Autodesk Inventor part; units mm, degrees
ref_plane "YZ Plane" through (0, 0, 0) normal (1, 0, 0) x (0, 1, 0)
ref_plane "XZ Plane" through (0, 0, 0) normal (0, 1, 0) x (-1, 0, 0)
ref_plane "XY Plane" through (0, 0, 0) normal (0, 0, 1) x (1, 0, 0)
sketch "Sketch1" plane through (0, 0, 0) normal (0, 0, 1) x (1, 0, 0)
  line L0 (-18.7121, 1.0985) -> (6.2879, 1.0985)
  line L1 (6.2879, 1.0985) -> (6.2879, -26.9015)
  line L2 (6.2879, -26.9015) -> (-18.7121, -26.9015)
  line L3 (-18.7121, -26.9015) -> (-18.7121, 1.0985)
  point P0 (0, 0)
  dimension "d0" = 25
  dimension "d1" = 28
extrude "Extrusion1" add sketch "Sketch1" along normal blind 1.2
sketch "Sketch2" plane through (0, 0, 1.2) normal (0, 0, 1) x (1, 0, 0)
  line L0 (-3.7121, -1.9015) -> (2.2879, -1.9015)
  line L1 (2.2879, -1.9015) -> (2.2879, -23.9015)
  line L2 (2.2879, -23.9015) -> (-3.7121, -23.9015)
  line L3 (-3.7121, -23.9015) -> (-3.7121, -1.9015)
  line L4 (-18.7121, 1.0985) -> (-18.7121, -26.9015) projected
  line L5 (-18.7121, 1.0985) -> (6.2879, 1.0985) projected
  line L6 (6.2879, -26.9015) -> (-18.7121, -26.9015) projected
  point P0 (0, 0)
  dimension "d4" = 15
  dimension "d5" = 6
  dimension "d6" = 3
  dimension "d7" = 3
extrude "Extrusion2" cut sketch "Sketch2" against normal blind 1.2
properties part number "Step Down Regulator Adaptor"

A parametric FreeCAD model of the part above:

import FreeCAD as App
import Part
import Sketcher
Q = App.Units.Quantity


def add_polygon(sketch, points):
    """Adds a closed chain of lines whose ends are joined by coincident constraints."""
    first, n = sketch.GeometryCount, len(points)
    for a, b in zip(points, points[1:] + points[:1]):
        sketch.addGeometry(Part.LineSegment(App.Vector(*a, 0), App.Vector(*b, 0)), False)
    for i in range(n):
        sketch.addConstraint(Sketcher.Constraint("Coincident", first + i, 2, first + (i + 1) % n, 1))

doc = App.newDocument("Part")
params = doc.addObject("Spreadsheet::Sheet", "Params")
for row, (alias, value) in enumerate([
    ("sketch1_width", "25 mm"),
    ("sketch1_height", "28 mm"),
    ("pad1_length", "1.2 mm"),
    ("sketch2_width", "6 mm"),
    ("sketch2_height", "22 mm"),
    ("pocket1_length", "1.2 mm"),
], start=1):
    params.set(f"A{row}", alias)
    params.set(f"B{row}", "=" + value)
    params.setAlias(f"B{row}", alias)

body = doc.addObject("PartDesign::Body", "Body")

sketch1 = body.newObject("Sketcher::SketchObject", "Sketch")
sketch1.AttachmentSupport = (doc.getObject("XY_Plane"), [""])
sketch1.MapMode = "FlatFace"
add_polygon(sketch1, [(6.2879, 1.0985), (-18.7121, 1.0985), (-18.7121, -26.9015), (6.2879, -26.9015)])
sketch1.addConstraint([
    Sketcher.Constraint("Horizontal", 0),
    Sketcher.Constraint("Vertical", 1),
    Sketcher.Constraint("Horizontal", 2),
    Sketcher.Constraint("Vertical", 3),
    Sketcher.Constraint("DistanceX", 0, 2, 0, 1, Q("25 mm")),
    Sketcher.Constraint("DistanceY", 1, 2, 1, 1, Q("28 mm")),
    Sketcher.Constraint("DistanceX", 0, 2, -1, 1, Q("18.712 mm")),
    Sketcher.Constraint("DistanceY", -1, 1, 0, 2, Q("1.0985 mm")),
])
sketch1.setExpression("Constraints[8]", "Params.sketch1_width")
sketch1.setExpression("Constraints[9]", "Params.sketch1_height")
pad1 = body.newObject("PartDesign::Pad", "Pad")
pad1.Profile = sketch1
pad1.setExpression("Length", "Params.pad1_length")

sketch2 = body.newObject("Sketcher::SketchObject", "Sketch001")
sketch2.AttachmentSupport = (doc.getObject("XY_Plane"), [""])
sketch2.MapMode = "FlatFace"
sketch2.AttachmentOffset = App.Placement(App.Vector(0, 0, 1.2), App.Rotation())
add_polygon(sketch2, [(2.2879, -1.9015), (-3.7121, -1.9015), (-3.7121, -23.9015), (2.2879, -23.9015)])
sketch2.addConstraint([
    Sketcher.Constraint("Horizontal", 0),
    Sketcher.Constraint("Vertical", 1),
    Sketcher.Constraint("Horizontal", 2),
    Sketcher.Constraint("Vertical", 3),
    Sketcher.Constraint("DistanceX", 0, 2, 0, 1, Q("6 mm")),
    Sketcher.Constraint("DistanceY", 1, 2, 1, 1, Q("22 mm")),
    Sketcher.Constraint("DistanceX", 0, 2, -1, 1, Q("3.712 mm")),
    Sketcher.Constraint("DistanceY", 0, 2, -1, 1, Q("1.9015 mm")),
])
sketch2.setExpression("Constraints[8]", "Params.sketch2_width")
sketch2.setExpression("Constraints[9]", "Params.sketch2_height")
pocket1 = body.newObject("PartDesign::Pocket", "Pocket")
pocket1.Profile = sketch2
pocket1.setExpression("Length", "Params.pocket1_length")

doc.recompute()
